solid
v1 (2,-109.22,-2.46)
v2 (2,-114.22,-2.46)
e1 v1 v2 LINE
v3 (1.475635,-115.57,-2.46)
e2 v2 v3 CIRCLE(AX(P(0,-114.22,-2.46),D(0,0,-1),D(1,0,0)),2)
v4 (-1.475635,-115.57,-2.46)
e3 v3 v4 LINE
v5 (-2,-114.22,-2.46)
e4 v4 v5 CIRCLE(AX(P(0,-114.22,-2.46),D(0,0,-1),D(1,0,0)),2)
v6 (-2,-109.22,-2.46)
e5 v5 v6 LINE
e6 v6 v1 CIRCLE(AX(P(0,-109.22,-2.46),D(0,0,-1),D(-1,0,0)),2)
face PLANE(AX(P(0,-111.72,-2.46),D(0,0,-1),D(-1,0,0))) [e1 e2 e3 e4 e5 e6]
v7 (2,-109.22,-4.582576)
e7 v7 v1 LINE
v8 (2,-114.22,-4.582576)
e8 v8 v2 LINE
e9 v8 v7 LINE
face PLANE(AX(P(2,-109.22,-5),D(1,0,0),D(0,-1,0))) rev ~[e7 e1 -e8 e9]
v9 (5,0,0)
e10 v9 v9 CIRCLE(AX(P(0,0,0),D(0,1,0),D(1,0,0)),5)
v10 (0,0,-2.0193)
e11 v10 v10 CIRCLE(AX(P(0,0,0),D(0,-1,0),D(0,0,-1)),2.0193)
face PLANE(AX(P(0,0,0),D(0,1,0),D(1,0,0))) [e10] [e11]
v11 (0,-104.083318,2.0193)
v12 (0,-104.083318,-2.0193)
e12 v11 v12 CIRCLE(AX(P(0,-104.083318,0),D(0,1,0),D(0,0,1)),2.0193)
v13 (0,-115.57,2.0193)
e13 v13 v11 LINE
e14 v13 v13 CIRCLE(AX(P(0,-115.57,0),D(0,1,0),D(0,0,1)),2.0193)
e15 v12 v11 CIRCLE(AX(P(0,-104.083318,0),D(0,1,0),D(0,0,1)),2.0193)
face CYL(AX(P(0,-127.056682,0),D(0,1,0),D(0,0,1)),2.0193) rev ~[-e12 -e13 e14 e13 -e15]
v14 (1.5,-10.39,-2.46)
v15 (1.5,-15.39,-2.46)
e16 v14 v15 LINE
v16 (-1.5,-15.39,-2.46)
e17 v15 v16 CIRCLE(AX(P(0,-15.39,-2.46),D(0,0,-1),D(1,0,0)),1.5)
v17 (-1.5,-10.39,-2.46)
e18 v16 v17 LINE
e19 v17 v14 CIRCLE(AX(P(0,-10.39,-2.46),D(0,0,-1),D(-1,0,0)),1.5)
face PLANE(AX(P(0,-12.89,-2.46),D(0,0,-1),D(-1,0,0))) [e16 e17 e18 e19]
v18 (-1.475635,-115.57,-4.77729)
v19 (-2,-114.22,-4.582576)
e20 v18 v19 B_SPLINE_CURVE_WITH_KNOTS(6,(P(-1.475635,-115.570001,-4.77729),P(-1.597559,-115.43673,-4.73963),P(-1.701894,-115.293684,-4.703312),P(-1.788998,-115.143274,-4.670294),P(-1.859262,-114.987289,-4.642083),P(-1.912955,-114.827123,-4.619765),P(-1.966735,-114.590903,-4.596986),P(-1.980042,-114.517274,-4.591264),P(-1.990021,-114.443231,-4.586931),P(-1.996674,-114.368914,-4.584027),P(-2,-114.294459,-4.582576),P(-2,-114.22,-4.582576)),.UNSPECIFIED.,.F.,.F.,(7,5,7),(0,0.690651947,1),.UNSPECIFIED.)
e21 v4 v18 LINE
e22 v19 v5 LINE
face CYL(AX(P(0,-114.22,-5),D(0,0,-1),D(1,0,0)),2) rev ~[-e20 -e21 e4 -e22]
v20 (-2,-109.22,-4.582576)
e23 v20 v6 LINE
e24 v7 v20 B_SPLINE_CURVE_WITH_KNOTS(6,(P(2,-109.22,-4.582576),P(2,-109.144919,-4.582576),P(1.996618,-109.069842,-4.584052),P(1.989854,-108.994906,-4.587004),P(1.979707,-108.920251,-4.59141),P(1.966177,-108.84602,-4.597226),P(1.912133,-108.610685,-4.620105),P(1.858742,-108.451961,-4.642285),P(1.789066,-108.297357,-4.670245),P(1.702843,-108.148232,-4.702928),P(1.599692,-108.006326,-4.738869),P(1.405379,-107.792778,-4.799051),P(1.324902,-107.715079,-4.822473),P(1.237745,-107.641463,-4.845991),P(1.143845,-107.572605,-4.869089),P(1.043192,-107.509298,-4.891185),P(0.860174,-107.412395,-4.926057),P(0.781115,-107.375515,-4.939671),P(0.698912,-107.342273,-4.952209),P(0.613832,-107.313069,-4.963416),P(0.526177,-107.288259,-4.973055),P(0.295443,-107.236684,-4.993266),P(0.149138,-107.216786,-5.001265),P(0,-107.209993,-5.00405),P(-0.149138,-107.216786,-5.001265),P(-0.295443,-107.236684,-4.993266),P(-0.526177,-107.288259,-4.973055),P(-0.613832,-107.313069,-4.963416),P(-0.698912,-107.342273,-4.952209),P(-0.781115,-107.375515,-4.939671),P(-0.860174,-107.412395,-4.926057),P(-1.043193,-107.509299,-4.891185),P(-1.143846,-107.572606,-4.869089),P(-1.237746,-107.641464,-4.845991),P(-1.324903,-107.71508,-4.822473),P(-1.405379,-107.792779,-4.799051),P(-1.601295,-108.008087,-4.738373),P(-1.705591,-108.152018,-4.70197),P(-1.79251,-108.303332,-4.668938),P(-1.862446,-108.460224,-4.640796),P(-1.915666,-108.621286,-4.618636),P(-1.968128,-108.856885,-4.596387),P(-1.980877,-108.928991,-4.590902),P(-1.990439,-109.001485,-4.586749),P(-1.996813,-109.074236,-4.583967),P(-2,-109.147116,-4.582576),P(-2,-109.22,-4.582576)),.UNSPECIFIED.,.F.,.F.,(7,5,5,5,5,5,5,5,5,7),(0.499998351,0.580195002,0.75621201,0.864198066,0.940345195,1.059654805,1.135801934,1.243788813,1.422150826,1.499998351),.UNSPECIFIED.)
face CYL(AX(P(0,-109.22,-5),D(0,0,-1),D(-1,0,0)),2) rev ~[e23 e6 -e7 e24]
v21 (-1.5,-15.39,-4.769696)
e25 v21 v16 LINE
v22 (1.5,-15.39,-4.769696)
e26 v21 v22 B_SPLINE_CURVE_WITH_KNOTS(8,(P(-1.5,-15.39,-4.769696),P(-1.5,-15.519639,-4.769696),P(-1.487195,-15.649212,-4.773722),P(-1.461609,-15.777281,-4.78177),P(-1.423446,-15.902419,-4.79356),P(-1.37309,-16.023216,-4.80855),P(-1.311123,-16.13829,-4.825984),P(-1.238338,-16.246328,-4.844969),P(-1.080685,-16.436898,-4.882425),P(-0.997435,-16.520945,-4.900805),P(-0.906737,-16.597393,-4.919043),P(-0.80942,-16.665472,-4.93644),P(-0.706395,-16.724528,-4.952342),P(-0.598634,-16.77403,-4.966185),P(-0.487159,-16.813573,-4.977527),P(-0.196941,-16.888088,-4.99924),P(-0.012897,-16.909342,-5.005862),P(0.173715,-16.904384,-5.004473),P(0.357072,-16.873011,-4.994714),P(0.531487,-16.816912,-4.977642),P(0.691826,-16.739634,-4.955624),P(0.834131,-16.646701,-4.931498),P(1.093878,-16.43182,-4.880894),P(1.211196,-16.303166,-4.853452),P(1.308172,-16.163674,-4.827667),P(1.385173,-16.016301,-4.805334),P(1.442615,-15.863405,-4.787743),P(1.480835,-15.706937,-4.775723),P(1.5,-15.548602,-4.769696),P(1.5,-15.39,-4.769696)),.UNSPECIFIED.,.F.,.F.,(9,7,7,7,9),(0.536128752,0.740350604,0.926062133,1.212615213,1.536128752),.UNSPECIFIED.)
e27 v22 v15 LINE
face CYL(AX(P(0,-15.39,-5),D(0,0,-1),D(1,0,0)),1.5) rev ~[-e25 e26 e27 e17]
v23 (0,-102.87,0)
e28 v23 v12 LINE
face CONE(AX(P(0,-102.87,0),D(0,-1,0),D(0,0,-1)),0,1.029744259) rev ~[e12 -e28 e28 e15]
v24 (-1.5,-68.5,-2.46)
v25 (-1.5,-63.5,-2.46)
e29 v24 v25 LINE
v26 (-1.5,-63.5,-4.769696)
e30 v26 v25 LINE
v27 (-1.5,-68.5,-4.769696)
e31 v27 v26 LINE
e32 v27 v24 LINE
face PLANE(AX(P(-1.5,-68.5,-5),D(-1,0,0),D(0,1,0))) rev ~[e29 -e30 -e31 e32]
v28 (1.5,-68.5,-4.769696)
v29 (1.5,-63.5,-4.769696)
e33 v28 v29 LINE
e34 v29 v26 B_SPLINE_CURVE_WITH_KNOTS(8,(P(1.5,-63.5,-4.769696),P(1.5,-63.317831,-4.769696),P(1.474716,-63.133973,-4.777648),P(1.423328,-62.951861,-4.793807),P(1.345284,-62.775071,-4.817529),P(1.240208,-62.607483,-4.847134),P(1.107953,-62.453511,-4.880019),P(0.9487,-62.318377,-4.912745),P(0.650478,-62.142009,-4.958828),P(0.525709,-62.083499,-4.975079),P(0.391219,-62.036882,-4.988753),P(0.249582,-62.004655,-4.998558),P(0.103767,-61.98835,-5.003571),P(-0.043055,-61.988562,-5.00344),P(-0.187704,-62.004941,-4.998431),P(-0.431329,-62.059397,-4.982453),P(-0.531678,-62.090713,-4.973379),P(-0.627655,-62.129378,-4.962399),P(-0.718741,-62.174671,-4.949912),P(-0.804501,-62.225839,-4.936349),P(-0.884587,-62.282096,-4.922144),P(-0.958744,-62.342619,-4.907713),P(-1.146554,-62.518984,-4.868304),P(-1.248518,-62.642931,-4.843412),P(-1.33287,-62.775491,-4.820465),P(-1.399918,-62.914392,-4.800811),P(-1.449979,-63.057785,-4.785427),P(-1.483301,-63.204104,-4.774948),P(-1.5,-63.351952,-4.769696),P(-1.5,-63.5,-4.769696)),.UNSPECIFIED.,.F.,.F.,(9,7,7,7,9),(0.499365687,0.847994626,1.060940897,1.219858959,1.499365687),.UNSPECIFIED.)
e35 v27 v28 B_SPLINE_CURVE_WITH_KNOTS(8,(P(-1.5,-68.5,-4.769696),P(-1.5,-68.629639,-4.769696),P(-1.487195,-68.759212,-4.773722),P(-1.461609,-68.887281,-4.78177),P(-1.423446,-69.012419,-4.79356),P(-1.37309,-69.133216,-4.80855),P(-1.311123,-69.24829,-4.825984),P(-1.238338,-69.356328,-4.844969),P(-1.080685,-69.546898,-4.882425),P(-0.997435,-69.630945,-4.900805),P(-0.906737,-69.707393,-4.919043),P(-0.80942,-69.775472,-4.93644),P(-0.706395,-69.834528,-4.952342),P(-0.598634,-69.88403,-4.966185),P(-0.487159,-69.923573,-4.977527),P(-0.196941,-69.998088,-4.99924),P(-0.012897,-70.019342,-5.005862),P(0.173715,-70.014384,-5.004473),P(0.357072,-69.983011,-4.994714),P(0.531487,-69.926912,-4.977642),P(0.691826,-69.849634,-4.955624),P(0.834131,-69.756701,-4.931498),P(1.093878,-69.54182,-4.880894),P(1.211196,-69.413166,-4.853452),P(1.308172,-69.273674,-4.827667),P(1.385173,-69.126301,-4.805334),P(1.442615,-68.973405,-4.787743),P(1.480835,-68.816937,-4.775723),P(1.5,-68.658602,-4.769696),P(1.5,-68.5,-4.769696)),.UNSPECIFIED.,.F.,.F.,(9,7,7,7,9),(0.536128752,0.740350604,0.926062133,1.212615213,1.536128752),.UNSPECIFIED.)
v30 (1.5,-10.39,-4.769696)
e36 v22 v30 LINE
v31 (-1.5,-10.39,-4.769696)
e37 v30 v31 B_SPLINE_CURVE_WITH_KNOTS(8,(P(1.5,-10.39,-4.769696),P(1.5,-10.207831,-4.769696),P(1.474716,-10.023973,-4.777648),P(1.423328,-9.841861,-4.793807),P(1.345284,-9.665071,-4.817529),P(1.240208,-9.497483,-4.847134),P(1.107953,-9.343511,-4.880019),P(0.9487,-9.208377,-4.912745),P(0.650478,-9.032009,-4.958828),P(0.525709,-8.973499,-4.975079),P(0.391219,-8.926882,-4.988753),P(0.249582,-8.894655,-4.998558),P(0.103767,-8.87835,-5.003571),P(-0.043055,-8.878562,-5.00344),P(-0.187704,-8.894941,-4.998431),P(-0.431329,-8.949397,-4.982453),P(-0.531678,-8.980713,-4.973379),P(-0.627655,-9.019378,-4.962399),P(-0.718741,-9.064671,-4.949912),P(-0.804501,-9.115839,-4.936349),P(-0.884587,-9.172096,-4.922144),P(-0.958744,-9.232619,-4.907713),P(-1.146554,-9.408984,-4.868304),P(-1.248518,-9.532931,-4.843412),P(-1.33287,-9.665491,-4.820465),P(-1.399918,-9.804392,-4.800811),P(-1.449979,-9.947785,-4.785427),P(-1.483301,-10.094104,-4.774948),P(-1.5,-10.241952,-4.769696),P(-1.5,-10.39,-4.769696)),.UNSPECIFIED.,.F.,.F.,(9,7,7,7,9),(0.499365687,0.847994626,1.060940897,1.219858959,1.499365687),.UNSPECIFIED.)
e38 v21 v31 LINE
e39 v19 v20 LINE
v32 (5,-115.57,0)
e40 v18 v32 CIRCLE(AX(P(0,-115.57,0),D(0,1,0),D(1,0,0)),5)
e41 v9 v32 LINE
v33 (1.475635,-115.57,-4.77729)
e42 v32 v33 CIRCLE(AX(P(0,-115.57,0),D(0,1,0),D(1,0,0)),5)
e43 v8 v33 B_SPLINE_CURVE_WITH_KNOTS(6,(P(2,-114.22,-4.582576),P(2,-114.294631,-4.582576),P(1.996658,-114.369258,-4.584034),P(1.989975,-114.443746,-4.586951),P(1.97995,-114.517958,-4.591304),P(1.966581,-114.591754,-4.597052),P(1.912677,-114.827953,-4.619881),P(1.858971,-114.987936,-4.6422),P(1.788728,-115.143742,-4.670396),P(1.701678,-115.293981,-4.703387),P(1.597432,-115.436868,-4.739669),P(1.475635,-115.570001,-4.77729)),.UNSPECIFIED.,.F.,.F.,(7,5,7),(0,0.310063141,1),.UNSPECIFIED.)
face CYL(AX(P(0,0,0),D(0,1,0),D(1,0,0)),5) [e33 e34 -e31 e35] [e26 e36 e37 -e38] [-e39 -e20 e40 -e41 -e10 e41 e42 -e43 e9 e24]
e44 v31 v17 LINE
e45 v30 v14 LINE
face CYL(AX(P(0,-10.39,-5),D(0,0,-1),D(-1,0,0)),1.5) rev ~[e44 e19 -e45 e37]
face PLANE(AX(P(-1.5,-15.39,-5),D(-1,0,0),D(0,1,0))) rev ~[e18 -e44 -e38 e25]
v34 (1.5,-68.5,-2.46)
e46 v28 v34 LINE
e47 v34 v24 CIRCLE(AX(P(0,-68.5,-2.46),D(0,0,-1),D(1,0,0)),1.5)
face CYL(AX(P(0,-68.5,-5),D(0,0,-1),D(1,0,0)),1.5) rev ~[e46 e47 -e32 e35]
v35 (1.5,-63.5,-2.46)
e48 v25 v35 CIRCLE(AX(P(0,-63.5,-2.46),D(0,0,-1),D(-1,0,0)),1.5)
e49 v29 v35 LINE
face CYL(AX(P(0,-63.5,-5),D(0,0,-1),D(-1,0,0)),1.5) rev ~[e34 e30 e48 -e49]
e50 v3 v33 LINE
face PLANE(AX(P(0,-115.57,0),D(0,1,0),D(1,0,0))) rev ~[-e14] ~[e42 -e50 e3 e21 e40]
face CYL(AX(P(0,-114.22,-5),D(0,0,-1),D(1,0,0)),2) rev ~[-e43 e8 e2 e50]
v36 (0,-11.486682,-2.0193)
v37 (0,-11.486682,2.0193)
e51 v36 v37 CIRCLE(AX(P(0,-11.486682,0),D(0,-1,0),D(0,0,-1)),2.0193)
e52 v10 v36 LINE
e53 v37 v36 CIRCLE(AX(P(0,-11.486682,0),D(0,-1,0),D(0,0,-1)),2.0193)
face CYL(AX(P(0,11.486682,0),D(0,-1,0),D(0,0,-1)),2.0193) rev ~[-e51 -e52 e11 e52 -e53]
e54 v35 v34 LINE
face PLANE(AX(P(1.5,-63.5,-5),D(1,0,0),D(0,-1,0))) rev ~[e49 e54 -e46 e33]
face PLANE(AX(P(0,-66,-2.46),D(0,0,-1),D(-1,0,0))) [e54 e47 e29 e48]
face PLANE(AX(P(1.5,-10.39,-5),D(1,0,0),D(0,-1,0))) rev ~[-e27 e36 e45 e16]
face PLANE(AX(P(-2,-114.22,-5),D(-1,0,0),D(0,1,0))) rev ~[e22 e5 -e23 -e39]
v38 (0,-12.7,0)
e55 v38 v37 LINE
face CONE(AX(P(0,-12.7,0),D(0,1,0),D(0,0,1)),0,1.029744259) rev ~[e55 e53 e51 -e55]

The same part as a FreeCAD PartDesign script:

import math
import FreeCAD as App
import Part
import Sketcher

V = App.Vector

doc = App.newDocument("Part")
body = doc.addObject("PartDesign::Body", "Body")

sketch1 = doc.addObject("Sketcher::SketchObject", "Sketch")
body.addObject(sketch1)
sketch1.AttachmentSupport = (doc.XZ_Plane, [""])
sketch1.MapMode = "FlatFace"
sketch1.addGeometry(Part.Circle(V(0, 0, 0), V(0, 0, 1), 5), False)
sketch1.addConstraint(Sketcher.Constraint("Coincident", 0, 3, -1, 1))
sketch1.addConstraint(Sketcher.Constraint("Diameter", 0, 10.0))
pad1 = doc.addObject("PartDesign::Pad", "Pad")
body.addObject(pad1)
pad1.Profile = sketch1
pad1.Length = 115.57

sketch2 = doc.addObject("Sketcher::SketchObject", "Sketch001")
body.addObject(sketch2)
sketch2.AttachmentSupport = (doc.XY_Plane, [""])
sketch2.MapMode = "FlatFace"
sketch2.AttachmentOffset = App.Placement(V(0, 0, -5), App.Rotation())
sketch2.addGeometry(Part.LineSegment(V(2, -109.2, 0), V(2, -114.2, 0)), False)
sketch2.addGeometry(Part.ArcOfCircle(Part.Circle(V(0, -114.2, 0), V(0, 0, 1), 2), math.radians(180), math.radians(360)), False)
sketch2.addGeometry(Part.LineSegment(V(-2, -114.2, 0), V(-2, -109.2, 0)), False)
sketch2.addGeometry(Part.ArcOfCircle(Part.Circle(V(0, -109.2, 0), V(0, 0, 1), 2), math.radians(0), math.radians(180)), False)
sketch2.addGeometry(Part.LineSegment(V(1.5, -63.5, 0), V(1.5, -68.5, 0)), False)
sketch2.addGeometry(Part.ArcOfCircle(Part.Circle(V(0, -68.5, 0), V(0, 0, 1), 1.5), math.radians(180), math.radians(360)), False)
sketch2.addGeometry(Part.LineSegment(V(-1.5, -68.5, 0), V(-1.5, -63.5, 0)), False)
sketch2.addGeometry(Part.ArcOfCircle(Part.Circle(V(0, -63.5, 0), V(0, 0, 1), 1.5), math.radians(0), math.radians(180)), False)
sketch2.addGeometry(Part.LineSegment(V(1.5, -10.4, 0), V(1.5, -15.4, 0)), False)
sketch2.addGeometry(Part.ArcOfCircle(Part.Circle(V(0, -15.4, 0), V(0, 0, 1), 1.5), math.radians(180), math.radians(360)), False)
sketch2.addGeometry(Part.LineSegment(V(-1.5, -15.4, 0), V(-1.5, -10.4, 0)), False)
sketch2.addGeometry(Part.ArcOfCircle(Part.Circle(V(0, -10.4, 0), V(0, 0, 1), 1.5), math.radians(0), math.radians(180)), False)
sketch2.addConstraint(Sketcher.Constraint("Tangent", 0, 2, 1, 2))
sketch2.addConstraint(Sketcher.Constraint("Tangent", 1, 1, 2, 1))
sketch2.addConstraint(Sketcher.Constraint("Tangent", 2, 2, 3, 2))
sketch2.addConstraint(Sketcher.Constraint("Tangent", 3, 1, 0, 1))
sketch2.addConstraint(Sketcher.Constraint("Tangent", 4, 2, 5, 2))
sketch2.addConstraint(Sketcher.Constraint("Tangent", 5, 1, 6, 1))
sketch2.addConstraint(Sketcher.Constraint("Tangent", 6, 2, 7, 2))
sketch2.addConstraint(Sketcher.Constraint("Tangent", 7, 1, 4, 1))
sketch2.addConstraint(Sketcher.Constraint("Tangent", 8, 2, 9, 2))
sketch2.addConstraint(Sketcher.Constraint("Tangent", 9, 1, 10, 1))
sketch2.addConstraint(Sketcher.Constraint("Tangent", 10, 2, 11, 2))
sketch2.addConstraint(Sketcher.Constraint("Tangent", 11, 1, 8, 1))
sketch2.addConstraint(Sketcher.Constraint("Vertical", 0))
sketch2.addConstraint(Sketcher.Constraint("Vertical", 2))
sketch2.addConstraint(Sketcher.Constraint("Vertical", 4))
sketch2.addConstraint(Sketcher.Constraint("Vertical", 6))
sketch2.addConstraint(Sketcher.Constraint("Vertical", 8))
sketch2.addConstraint(Sketcher.Constraint("Vertical", 10))
sketch2.addConstraint(Sketcher.Constraint("Equal", 7, 9))
sketch2.addConstraint(Sketcher.Constraint("PointOnObject", 1, 3, -2))
sketch2.addConstraint(Sketcher.Constraint("PointOnObject", 5, 3, -2))
sketch2.addConstraint(Sketcher.Constraint("PointOnObject", 9, 3, -2))
sketch2.addConstraint(Sketcher.Constraint("Equal", 2, 4))
sketch2.addConstraint(Sketcher.Constraint("Equal", 6, 8))
sketch2.addConstraint(Sketcher.Constraint("Radius", 1, 2.0))
sketch2.addConstraint(Sketcher.Constraint("Radius", 5, 1.5))
sketch2.addConstraint(Sketcher.Constraint("DistanceY", 0, 2, 0, 1, 5.0))
sketch2.addConstraint(Sketcher.Constraint("DistanceY", 5, 3, -1, 1, 68.5))
sketch2.addConstraint(Sketcher.Constraint("DistanceY", 1, 3, -1, 1, 114.22))
sketch2.addConstraint(Sketcher.Constraint("DistanceY", 9, 3, -1, 1, 15.39))
pocket1 = doc.addObject("PartDesign::Pocket", "Pocket")
body.addObject(pocket1)
pocket1.Profile = sketch2
pocket1.Length = 2.54
pocket1.Reversed = True

sketch3 = doc.addObject("Sketcher::SketchObject", "Sketch002")
body.addObject(sketch3)
sketch3.AttachmentSupport = (doc.XZ_Plane, [""])
sketch3.MapMode = "FlatFace"
sketch3.addGeometry(Part.Circle(V(0, 0, 0), V(0, 0, 1), 2), False)
sketch3.addConstraint(Sketcher.Constraint("Coincident", 0, 3, -1, 1))
sketch3.addConstraint(Sketcher.Constraint("Diameter", 0, 4.0386))
doc.recompute()
hole = doc.addObject("PartDesign::Hole", "Hole")
body.addObject(hole)
hole.Profile = sketch3
hole.ThreadType = "None"
hole.Diameter = 4.0386
hole.DepthType = "Dimension"
hole.Depth = 11.486682
hole.DrillPoint = "Angled"
hole.DrillPointAngle = 118
hole.Reversed = True

sketch4 = doc.addObject("Sketcher::SketchObject", "Sketch003")
body.addObject(sketch4)
sketch4.AttachmentSupport = (doc.XZ_Plane, [""])
sketch4.MapMode = "FlatFace"
sketch4.AttachmentOffset = App.Placement(V(0, 0, 115.57), App.Rotation())
sketch4.addGeometry(Part.Circle(V(0, 0, 0), V(0, 0, 1), 2), False)
sketch4.addConstraint(Sketcher.Constraint("Coincident", 0, 3, -1, 1))
sketch4.addConstraint(Sketcher.Constraint("Diameter", 0, 4.0386))
doc.recompute()
hole2 = doc.addObject("PartDesign::Hole", "Hole001")
body.addObject(hole2)
hole2.Profile = sketch4
hole2.ThreadType = "None"
hole2.Diameter = 4.0386
hole2.DepthType = "Dimension"
hole2.Depth = 11.486682
hole2.DrillPoint = "Angled"
hole2.DrillPointAngle = 118

doc.recompute()
